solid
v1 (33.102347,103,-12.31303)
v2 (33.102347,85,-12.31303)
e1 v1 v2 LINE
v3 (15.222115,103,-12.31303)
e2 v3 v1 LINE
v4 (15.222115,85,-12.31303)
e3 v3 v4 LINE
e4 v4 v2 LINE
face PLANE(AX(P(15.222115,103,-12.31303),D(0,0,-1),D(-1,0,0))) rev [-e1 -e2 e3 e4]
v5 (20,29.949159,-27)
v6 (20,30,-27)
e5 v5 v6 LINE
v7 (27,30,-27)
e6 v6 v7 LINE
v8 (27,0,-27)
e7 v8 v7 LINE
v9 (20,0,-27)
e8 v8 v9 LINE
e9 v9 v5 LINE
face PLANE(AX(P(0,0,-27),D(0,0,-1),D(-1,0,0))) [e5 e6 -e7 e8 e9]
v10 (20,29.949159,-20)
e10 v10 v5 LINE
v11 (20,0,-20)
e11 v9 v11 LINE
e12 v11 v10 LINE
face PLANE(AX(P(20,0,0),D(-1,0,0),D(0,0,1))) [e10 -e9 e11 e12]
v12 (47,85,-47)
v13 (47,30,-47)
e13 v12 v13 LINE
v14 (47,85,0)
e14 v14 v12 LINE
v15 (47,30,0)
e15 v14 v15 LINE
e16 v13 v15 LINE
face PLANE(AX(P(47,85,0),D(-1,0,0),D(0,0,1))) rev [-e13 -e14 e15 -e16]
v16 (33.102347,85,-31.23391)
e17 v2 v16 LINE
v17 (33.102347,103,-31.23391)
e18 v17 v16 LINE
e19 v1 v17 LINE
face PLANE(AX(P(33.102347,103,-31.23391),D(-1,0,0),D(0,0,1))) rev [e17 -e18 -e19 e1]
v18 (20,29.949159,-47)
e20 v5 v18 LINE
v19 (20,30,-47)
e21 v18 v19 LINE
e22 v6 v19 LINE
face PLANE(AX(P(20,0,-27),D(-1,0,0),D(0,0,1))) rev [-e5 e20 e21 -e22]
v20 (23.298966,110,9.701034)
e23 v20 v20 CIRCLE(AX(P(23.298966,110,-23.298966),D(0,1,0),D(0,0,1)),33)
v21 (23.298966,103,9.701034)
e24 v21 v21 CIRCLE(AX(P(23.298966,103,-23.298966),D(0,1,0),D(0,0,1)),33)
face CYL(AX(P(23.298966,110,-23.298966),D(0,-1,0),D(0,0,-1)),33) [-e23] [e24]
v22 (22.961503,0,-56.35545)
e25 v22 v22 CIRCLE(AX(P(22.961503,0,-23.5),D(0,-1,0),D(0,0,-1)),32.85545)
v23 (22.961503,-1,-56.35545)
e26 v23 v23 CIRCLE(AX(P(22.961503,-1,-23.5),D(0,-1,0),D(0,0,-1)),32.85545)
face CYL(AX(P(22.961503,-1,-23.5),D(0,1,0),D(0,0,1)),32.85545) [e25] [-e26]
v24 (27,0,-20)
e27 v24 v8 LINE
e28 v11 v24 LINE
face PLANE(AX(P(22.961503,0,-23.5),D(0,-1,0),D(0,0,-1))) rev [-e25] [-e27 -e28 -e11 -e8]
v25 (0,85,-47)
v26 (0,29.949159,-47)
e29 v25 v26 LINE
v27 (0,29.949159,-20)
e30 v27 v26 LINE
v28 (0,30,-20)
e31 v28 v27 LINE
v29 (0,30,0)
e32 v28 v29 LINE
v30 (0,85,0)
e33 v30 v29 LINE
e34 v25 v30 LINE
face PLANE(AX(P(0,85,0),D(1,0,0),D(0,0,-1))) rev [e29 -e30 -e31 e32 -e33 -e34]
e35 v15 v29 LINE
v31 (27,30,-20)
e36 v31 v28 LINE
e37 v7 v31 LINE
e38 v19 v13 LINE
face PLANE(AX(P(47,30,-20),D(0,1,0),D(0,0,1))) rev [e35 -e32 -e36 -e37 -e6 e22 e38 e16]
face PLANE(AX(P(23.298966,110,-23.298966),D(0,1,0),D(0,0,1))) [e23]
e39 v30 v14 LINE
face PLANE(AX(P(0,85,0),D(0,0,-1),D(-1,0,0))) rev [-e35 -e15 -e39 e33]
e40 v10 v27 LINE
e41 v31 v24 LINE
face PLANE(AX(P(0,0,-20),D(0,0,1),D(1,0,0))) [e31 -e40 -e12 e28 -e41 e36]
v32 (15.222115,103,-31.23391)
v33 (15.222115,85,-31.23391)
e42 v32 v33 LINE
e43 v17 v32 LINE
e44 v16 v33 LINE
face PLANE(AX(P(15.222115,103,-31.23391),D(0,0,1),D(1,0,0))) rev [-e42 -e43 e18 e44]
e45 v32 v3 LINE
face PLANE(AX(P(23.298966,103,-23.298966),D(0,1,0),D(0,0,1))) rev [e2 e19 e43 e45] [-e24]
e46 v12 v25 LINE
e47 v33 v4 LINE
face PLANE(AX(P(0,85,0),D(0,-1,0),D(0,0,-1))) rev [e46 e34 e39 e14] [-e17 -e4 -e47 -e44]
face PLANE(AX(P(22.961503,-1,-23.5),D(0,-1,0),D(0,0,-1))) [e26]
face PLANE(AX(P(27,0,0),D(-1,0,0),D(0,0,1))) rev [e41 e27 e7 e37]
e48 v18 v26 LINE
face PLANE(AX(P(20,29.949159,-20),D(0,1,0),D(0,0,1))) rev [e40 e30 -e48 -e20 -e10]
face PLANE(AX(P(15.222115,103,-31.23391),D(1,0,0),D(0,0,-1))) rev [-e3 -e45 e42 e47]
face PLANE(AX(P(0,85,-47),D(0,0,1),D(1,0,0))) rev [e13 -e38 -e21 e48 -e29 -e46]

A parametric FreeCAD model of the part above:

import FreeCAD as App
import Part
import Sketcher

V = App.Vector

doc = App.newDocument("Part")
params = doc.addObject("Spreadsheet::Sheet", "Params")
for row, (alias, value) in enumerate([
    ("sketch1_width", "47 mm"),
    ("pad1_length", "85 mm"),
    ("sketch2_width", "47 mm"),
    ("sketch2_height", "30 mm"),
    ("pocket1_length", "20 mm"),
    ("sketch3_height", "27 mm"),
    ("pocket2_length", "20 mm"),
    ("sketch4_width", "27 mm"),
    ("sketch4_height", "30 mm"),
    ("pocket3_length", "20 mm"),
    ("sketch5_width", "30 mm"),
    ("sketch5_height", "7 mm"),
    ("pocket4_length", "20 mm"),
    ("pad2_length", "18 mm"),
    ("sketch7_diameter", "66 mm"),
    ("pad3_length", "7 mm"),
    ("pad4_length", "1 mm"),
], start=1):
    params.set(f"A{row}", alias)
    params.set(f"B{row}", "=" + value)
    params.setAlias(f"B{row}", alias)

body = doc.addObject("PartDesign::Body", "Body")

# Sketch on XZ plane
sketch1 = doc.addObject("Sketcher::SketchObject", "Sketch")
body.addObject(sketch1)
sketch1.AttachmentSupport = (doc.XZ_Plane, [""])
sketch1.MapMode = "FlatFace"
sketch1.addGeometry([
    Part.LineSegment(V(0, -47, 0), V(0, 0, 0)),
    Part.LineSegment(V(0, 0, 0), V(47, 0, 0)),
    Part.LineSegment(V(47, 0, 0), V(47, -47, 0)),
    Part.LineSegment(V(47, -47, 0), V(0, -47, 0)),
], False)
sketch1.addConstraint([
    Sketcher.Constraint("Coincident", 0, 2, 1, 1),
    Sketcher.Constraint("Coincident", 1, 2, 2, 1),
    Sketcher.Constraint("Coincident", 2, 2, 3, 1),
    Sketcher.Constraint("Coincident", 3, 2, 0, 1),
    Sketcher.Constraint("Vertical", 0),
    Sketcher.Constraint("Horizontal", 1),
    Sketcher.Constraint("Vertical", 2),
    Sketcher.Constraint("Horizontal", 3),
    Sketcher.Constraint("Coincident", 0, 2, -1, 1),
    Sketcher.Constraint("Equal", 3, 0),
    Sketcher.Constraint("DistanceX", 1, 1, 1, 2, 47.0),
])
sketch1.setExpression("Constraints[10]", "Params.sketch1_width")
pad1 = doc.addObject("PartDesign::Pad", "Pad")
body.addObject(pad1)
pad1.Profile = sketch1
pad1.setExpression("Length", "Params.pad1_length")
pad1.Reversed = True

# Sketch on XY plane
sketch2 = doc.addObject("Sketcher::SketchObject", "Sketch001")
body.addObject(sketch2)
sketch2.AttachmentSupport = (doc.XY_Plane, [""])
sketch2.MapMode = "FlatFace"
sketch2.addGeometry([
    Part.LineSegment(V(0, 30, 0), V(0, 0, 0)),
    Part.LineSegment(V(0, 0, 0), V(47, 0, 0)),
    Part.LineSegment(V(47, 0, 0), V(47, 30, 0)),
    Part.LineSegment(V(47, 30, 0), V(0, 30, 0)),
], False)
sketch2.addConstraint([
    Sketcher.Constraint("Coincident", 0, 2, 1, 1),
    Sketcher.Constraint("Coincident", 1, 2, 2, 1),
    Sketcher.Constraint("Coincident", 2, 2, 3, 1),
    Sketcher.Constraint("Coincident", 3, 2, 0, 1),
    Sketcher.Constraint("Vertical", 0),
    Sketcher.Constraint("Horizontal", 1),
    Sketcher.Constraint("Vertical", 2),
    Sketcher.Constraint("Horizontal", 3),
    Sketcher.Constraint("Coincident", 0, 2, -1, 1),
    Sketcher.Constraint("DistanceX", 1, 1, 1, 2, 47.0),
    Sketcher.Constraint("DistanceY", 0, 2, 0, 1, 30.0),
])
sketch2.setExpression("Constraints[9]", "Params.sketch2_width")
sketch2.setExpression("Constraints[10]", "Params.sketch2_height")
pocket1 = doc.addObject("PartDesign::Pocket", "Pocket")
body.addObject(pocket1)
pocket1.Profile = sketch2
pocket1.setExpression("Length", "Params.pocket1_length")

# Sketch on YZ plane
sketch3 = doc.addObject("Sketcher::SketchObject", "Sketch002")
body.addObject(sketch3)
sketch3.AttachmentSupport = (doc.YZ_Plane, [""])
sketch3.MapMode = "FlatFace"
sketch3.addGeometry([
    Part.LineSegment(V(30, -47, 0), V(0, -47, 0)),
    Part.LineSegment(V(0, -47, 0), V(0, -20, 0)),
    Part.LineSegment(V(0, -20, 0), V(30, -20, 0)),
    Part.LineSegment(V(30, -20, 0), V(30, -47, 0)),
], False)
sketch3.addConstraint([
    Sketcher.Constraint("Coincident", 0, 2, 1, 1),
    Sketcher.Constraint("Coincident", 1, 2, 2, 1),
    Sketcher.Constraint("Coincident", 2, 2, 3, 1),
    Sketcher.Constraint("Coincident", 3, 2, 0, 1),
    Sketcher.Constraint("Horizontal", 0),
    Sketcher.Constraint("Vertical", 1),
    Sketcher.Constraint("Horizontal", 2),
    Sketcher.Constraint("Vertical", 3),
    Sketcher.Constraint("PointOnObject", 0, 2, -2),
    Sketcher.Constraint("DistanceY", 1, 1, 1, 2, 27.0),
    Sketcher.Constraint("DistanceY", 0, 2, -1, 1, 47.0),
    Sketcher.Constraint("DistanceX", 0, 2, 0, 1, 29.949159),
])
sketch3.setExpression("Constraints[9]", "Params.sketch3_height")
pocket2 = doc.addObject("PartDesign::Pocket", "Pocket001")
body.addObject(pocket2)
pocket2.Profile = sketch3
pocket2.setExpression("Length", "Params.pocket2_length")
pocket2.Reversed = True

# Sketch on XY plane
sketch4 = doc.addObject("Sketcher::SketchObject", "Sketch003")
body.addObject(sketch4)
sketch4.AttachmentSupport = (doc.XY_Plane, [""])
sketch4.MapMode = "FlatFace"
sketch4.AttachmentOffset = App.Placement(V(0, 0, -47), App.Rotation())
sketch4.addGeometry([
    Part.LineSegment(V(47, 30, 0), V(47, 0, 0)),
    Part.LineSegment(V(47, 0, 0), V(20, 0, 0)),
    Part.LineSegment(V(20, 0, 0), V(20, 30, 0)),
    Part.LineSegment(V(20, 30, 0), V(47, 30, 0)),
], False)
sketch4.addConstraint([
    Sketcher.Constraint("Coincident", 0, 2, 1, 1),
    Sketcher.Constraint("Coincident", 1, 2, 2, 1),
    Sketcher.Constraint("Coincident", 2, 2, 3, 1),
    Sketcher.Constraint("Coincident", 3, 2, 0, 1),
    Sketcher.Constraint("Vertical", 0),
    Sketcher.Constraint("Horizontal", 1),
    Sketcher.Constraint("Vertical", 2),
    Sketcher.Constraint("Horizontal", 3),
    Sketcher.Constraint("PointOnObject", 0, 2, -1),
    Sketcher.Constraint("DistanceX", 1, 2, 1, 1, 27.0),
    Sketcher.Constraint("DistanceY", 0, 2, 0, 1, 30.0),
    Sketcher.Constraint("DistanceX", -1, 1, 0, 2, 47.0),
])
sketch4.setExpression("Constraints[9]", "Params.sketch4_width")
sketch4.setExpression("Constraints[10]", "Params.sketch4_height")
pocket3 = doc.addObject("PartDesign::Pocket", "Pocket002")
body.addObject(pocket3)
pocket3.Profile = sketch4
pocket3.setExpression("Length", "Params.pocket3_length")
pocket3.Reversed = True

# Sketch on YZ plane
sketch5 = doc.addObject("Sketcher::SketchObject", "Sketch004")
body.addObject(sketch5)
sketch5.AttachmentSupport = (doc.YZ_Plane, [""])
sketch5.MapMode = "FlatFace"
sketch5.AttachmentOffset = App.Placement(V(0, 0, 47), App.Rotation())
sketch5.addGeometry([
    Part.LineSegment(V(30, -20, 0), V(0, -20, 0)),
    Part.LineSegment(V(0, -20, 0), V(0, -27, 0)),
    Part.LineSegment(V(0, -27, 0), V(30, -27, 0)),
    Part.LineSegment(V(30, -27, 0), V(30, -20, 0)),
], False)
sketch5.addConstraint([
    Sketcher.Constraint("Coincident", 0, 2, 1, 1),
    Sketcher.Constraint("Coincident", 1, 2, 2, 1),
    Sketcher.Constraint("Coincident", 2, 2, 3, 1),
    Sketcher.Constraint("Coincident", 3, 2, 0, 1),
    Sketcher.Constraint("Horizontal", 0),
    Sketcher.Constraint("Vertical", 1),
    Sketcher.Constraint("Horizontal", 2),
    Sketcher.Constraint("Vertical", 3),
    Sketcher.Constraint("PointOnObject", 0, 2, -2),
    Sketcher.Constraint("DistanceX", 0, 2, 0, 1, 30.0),
    Sketcher.Constraint("DistanceY", 1, 2, 1, 1, 7.0),
    Sketcher.Constraint("DistanceY", 0, 2, -1, 1, 20.0),
])
sketch5.setExpression("Constraints[9]", "Params.sketch5_width")
sketch5.setExpression("Constraints[10]", "Params.sketch5_height")
pocket4 = doc.addObject("PartDesign::Pocket", "Pocket003")
body.addObject(pocket4)
pocket4.Profile = sketch5
pocket4.setExpression("Length", "Params.pocket4_length")

# Sketch on XZ plane
sketch6 = doc.addObject("Sketcher::SketchObject", "Sketch005")
body.addObject(sketch6)
sketch6.AttachmentSupport = (doc.XZ_Plane, [""])
sketch6.MapMode = "FlatFace"
sketch6.AttachmentOffset = App.Placement(V(0, 0, -85), App.Rotation())
sketch6.addGeometry([
    Part.LineSegment(V(15, -31, 0), V(15, -12, 0)),
    Part.LineSegment(V(15, -12, 0), V(33, -12, 0)),
    Part.LineSegment(V(33, -12, 0), V(33, -31, 0)),
    Part.LineSegment(V(33, -31, 0), V(15, -31, 0)),
], False)
sketch6.addConstraint([
    Sketcher.Constraint("Coincident", 0, 2, 1, 1),
    Sketcher.Constraint("Coincident", 1, 2, 2, 1),
    Sketcher.Constraint("Coincident", 2, 2, 3, 1),
    Sketcher.Constraint("Coincident", 3, 2, 0, 1),
    Sketcher.Constraint("Vertical", 0),
    Sketcher.Constraint("Horizontal", 1),
    Sketcher.Constraint("Vertical", 2),
    Sketcher.Constraint("Horizontal", 3),
    Sketcher.Constraint("DistanceX", 1, 1, 1, 2, 17.880232),
    Sketcher.Constraint("DistanceY", 0, 1, 0, 2, 18.92088),
    Sketcher.Constraint("DistanceY", 0, 2, -1, 1, 12.31303),
    Sketcher.Constraint("DistanceX", -1, 1, 0, 2, 15.222115),
])
pad2 = doc.addObject("PartDesign::Pad", "Pad001")
body.addObject(pad2)
pad2.Profile = sketch6
pad2.setExpression("Length", "Params.pad2_length")
pad2.Reversed = True

# Sketch on XZ plane
sketch7 = doc.addObject("Sketcher::SketchObject", "Sketch006")
body.addObject(sketch7)
sketch7.AttachmentSupport = (doc.XZ_Plane, [""])
sketch7.MapMode = "FlatFace"
sketch7.AttachmentOffset = App.Placement(V(0, 0, -103), App.Rotation())
sketch7.addGeometry(Part.Circle(V(23, -23, 0), V(0, 0, 1), 33), False)
sketch7.addConstraint([
    Sketcher.Constraint("Diameter", 0, 66.0),
    Sketcher.Constraint("DistanceX", -1, 1, 0, 3, 23.298966),
    Sketcher.Constraint("DistanceY", 0, 3, -1, 1, 23.298966),
])
sketch7.setExpression("Constraints[0]", "Params.sketch7_diameter")
pad3 = doc.addObject("PartDesign::Pad", "Pad002")
body.addObject(pad3)
pad3.Profile = sketch7
pad3.setExpression("Length", "Params.pad3_length")
pad3.Reversed = True

# Sketch on XZ plane
sketch8 = doc.addObject("Sketcher::SketchObject", "Sketch007")
body.addObject(sketch8)
sketch8.AttachmentSupport = (doc.XZ_Plane, [""])
sketch8.MapMode = "FlatFace"
sketch8.addGeometry(Part.Circle(V(23, -24, 0), V(0, 0, 1), 33), False)
sketch8.addConstraint([
    Sketcher.Constraint("Diameter", 0, 65.7109),
    Sketcher.Constraint("DistanceY", 0, 3, -1, 1, 23.5),
    Sketcher.Constraint("DistanceX", -1, 1, 0, 3, 22.961503),
])
pad4 = doc.addObject("PartDesign::Pad", "Pad003")
body.addObject(pad4)
pad4.Profile = sketch8
pad4.setExpression("Length", "Params.pad4_length")

doc.recompute()
